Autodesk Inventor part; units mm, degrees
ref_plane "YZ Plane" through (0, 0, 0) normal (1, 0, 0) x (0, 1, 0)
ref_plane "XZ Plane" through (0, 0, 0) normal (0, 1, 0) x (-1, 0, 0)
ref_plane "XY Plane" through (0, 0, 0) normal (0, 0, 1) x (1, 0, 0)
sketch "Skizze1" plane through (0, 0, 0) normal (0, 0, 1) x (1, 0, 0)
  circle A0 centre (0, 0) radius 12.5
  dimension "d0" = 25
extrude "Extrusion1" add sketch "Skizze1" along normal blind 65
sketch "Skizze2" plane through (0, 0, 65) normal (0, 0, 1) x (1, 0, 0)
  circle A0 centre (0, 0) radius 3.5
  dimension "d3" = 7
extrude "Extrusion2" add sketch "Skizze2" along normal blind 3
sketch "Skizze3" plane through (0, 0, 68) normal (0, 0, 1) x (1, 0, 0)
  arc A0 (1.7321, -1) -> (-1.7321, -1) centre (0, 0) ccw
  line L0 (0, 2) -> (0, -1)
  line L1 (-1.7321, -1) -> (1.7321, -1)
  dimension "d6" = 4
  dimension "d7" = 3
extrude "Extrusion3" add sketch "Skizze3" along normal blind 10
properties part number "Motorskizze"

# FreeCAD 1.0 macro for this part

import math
import FreeCAD as App
import Part
import Sketcher
from FreeCAD import Vector

doc = App.newDocument("Part")
body = doc.addObject("PartDesign::Body", "Body")

# Sketch on XY plane
sketch1 = doc.addObject("Sketcher::SketchObject", "Sketch")
body.addObject(sketch1)
sketch1.AttachmentSupport = (doc.XY_Plane, [""])
sketch1.MapMode = "FlatFace"
sketch1.addGeometry(Part.Circle(Vector(0, 0, 0), Vector(0, 0, 1), 12), False)
sketch1.addConstraint([
    Sketcher.Constraint("Coincident", 0, 3, -1, 1),
    Sketcher.Constraint("Diameter", 0, 25.0),
])
pad1 = doc.addObject("PartDesign::Pad", "Pad")
body.addObject(pad1)
pad1.Profile = sketch1
pad1.Length = 65

# Sketch on XY plane
sketch2 = doc.addObject("Sketcher::SketchObject", "Sketch001")
body.addObject(sketch2)
sketch2.AttachmentSupport = (doc.XY_Plane, [""])
sketch2.MapMode = "FlatFace"
sketch2.AttachmentOffset = App.Placement(Vector(0, 0, 65), App.Rotation())
sketch2.addGeometry(Part.Circle(Vector(0, 0, 0), Vector(0, 0, 1), 3.5), False)
sketch2.addConstraint([
    Sketcher.Constraint("Coincident", 0, 3, -1, 1),
    Sketcher.Constraint("Diameter", 0, 7.0),
])
pad2 = doc.addObject("PartDesign::Pad", "Pad001")
body.addObject(pad2)
pad2.Profile = sketch2
pad2.Length = 3

# Sketch on XY plane
sketch3 = doc.addObject("Sketcher::SketchObject", "Sketch002")
body.addObject(sketch3)
sketch3.AttachmentSupport = (doc.XY_Plane, [""])
sketch3.MapMode = "FlatFace"
sketch3.AttachmentOffset = App.Placement(Vector(0, 0, 68), App.Rotation())
sketch3.addGeometry([
    Part.ArcOfCircle(Part.Circle(Vector(0, 0, 0), Vector(0, 0, 1), 2), math.radians(-30), math.radians(210)),
    Part.LineSegment(Vector(-1.7, -1, 0), Vector(1.7, -1, 0)),
], False)
sketch3.addConstraint([
    Sketcher.Constraint("Coincident", 0, 1, 1, 2),
    Sketcher.Constraint("Coincident", 1, 1, 0, 2),
    Sketcher.Constraint("Horizontal", 1),
    Sketcher.Constraint("Coincident", 0, 3, -1, 1),
    Sketcher.Constraint("Radius", 0, 2.0),
    Sketcher.Constraint("DistanceY", 0, 1, -1, 1, 1.0),
])
pad3 = doc.addObject("PartDesign::Pad", "Pad002")
body.addObject(pad3)
pad3.Profile = sketch3
pad3.Length = 10

doc.recompute()
